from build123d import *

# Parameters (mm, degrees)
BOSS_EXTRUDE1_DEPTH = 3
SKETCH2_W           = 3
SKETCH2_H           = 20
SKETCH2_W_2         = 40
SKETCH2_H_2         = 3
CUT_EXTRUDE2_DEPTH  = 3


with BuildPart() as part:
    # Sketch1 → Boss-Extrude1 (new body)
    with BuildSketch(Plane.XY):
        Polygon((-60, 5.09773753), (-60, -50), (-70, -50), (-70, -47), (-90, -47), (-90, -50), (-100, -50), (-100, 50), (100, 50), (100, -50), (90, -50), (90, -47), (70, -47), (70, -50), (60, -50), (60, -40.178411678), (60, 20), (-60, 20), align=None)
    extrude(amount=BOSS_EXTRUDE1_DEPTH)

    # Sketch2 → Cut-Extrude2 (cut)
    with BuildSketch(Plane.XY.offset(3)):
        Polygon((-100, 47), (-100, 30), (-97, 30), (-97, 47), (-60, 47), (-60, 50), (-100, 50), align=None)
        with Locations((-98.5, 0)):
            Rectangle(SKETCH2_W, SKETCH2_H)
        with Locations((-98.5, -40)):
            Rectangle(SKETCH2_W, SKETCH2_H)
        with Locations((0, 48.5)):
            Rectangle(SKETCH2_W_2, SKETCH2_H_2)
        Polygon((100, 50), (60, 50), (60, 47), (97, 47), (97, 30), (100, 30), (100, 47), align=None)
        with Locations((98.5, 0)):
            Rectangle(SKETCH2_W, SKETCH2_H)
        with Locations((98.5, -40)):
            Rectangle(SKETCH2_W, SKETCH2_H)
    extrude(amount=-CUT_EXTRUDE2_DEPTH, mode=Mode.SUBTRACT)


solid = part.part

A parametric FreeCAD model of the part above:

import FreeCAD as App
import Part
import Sketcher


def add_polygon(sketch, points):
    """Adds a closed chain of lines whose ends are joined by coincident constraints."""
    first, n = sketch.GeometryCount, len(points)
    for a, b in zip(points, points[1:] + points[:1]):
        sketch.addGeometry(Part.LineSegment(App.Vector(*a, 0), App.Vector(*b, 0)), False)
    for i in range(n):
        sketch.addConstraint(Sketcher.Constraint("Coincident", first + i, 2, first + (i + 1) % n, 1))

doc = App.newDocument("Part")
body = doc.addObject("PartDesign::Body", "Body")

# Sketch on XY plane
sketch1 = body.newObject("Sketcher::SketchObject", "Sketch")
sketch1.AttachmentSupport = (doc.getObject("XY_Plane"), [""])
sketch1.MapMode = "FlatFace"
add_polygon(sketch1, [(-60, -50), (-60, 20), (60, 20), (60, -50), (70, -50), (70, -47), (90, -47), (90, -50), (100, -50), (100, 50), (-100, 50), (-100, -50), (-90, -50), (-90, -47), (-70, -47), (-70, -50)])  # lines 0-15
sketch1.addConstraint([
    Sketcher.Constraint("Vertical", 0),
    Sketcher.Constraint("Horizontal", 1),
    Sketcher.Constraint("Vertical", 2),
    Sketcher.Constraint("Horizontal", 3),
    Sketcher.Constraint("Vertical", 4),
    Sketcher.Constraint("Horizontal", 5),
    Sketcher.Constraint("Vertical", 6),
    Sketcher.Constraint("Horizontal", 7),
    Sketcher.Constraint("Vertical", 8),
    Sketcher.Constraint("Horizontal", 9),
    Sketcher.Constraint("Vertical", 10),
    Sketcher.Constraint("Horizontal", 11),
    Sketcher.Constraint("Vertical", 12),
    Sketcher.Constraint("Horizontal", 13),
    Sketcher.Constraint("Vertical", 14),
    Sketcher.Constraint("Horizontal", 15),
    Sketcher.Constraint("Symmetric", 7, 2, 9, 2, -1, 1),
    Sketcher.Constraint("Symmetric", 6, 2, 11, 2, -2),
    Sketcher.Constraint("Symmetric", 4, 2, 13, 2, -2),
    Sketcher.Constraint("Symmetric", 2, 2, 15, 2, -2),
    Sketcher.Constraint("Horizontal", 3, 2, 6, 2),
    Sketcher.Constraint("Equal", 3, 7),
    Sketcher.Constraint("DistanceX", 1, 1, 1, 2, 120.0),
    Sketcher.Constraint("DistanceX", 3, 1, 3, 2, 10.0),
    Sketcher.Constraint("DistanceX", 5, 1, 5, 2, 20.0),
    Sketcher.Constraint("DistanceY", 0, 1, 0, 2, 70.0),
    Sketcher.Constraint("DistanceY", 4, 1, 4, 2, 3.0),
    Sketcher.Constraint("DistanceY", 8, 1, 8, 2, 100.0),
])
pad1 = body.newObject("PartDesign::Pad", "Pad")
pad1.Profile = sketch1
pad1.Length = 3

# Sketch on XY plane
sketch2 = body.newObject("Sketcher::SketchObject", "Sketch001")
sketch2.AttachmentSupport = (doc.getObject("XY_Plane"), [""])
sketch2.MapMode = "FlatFace"
sketch2.AttachmentOffset = App.Placement(App.Vector(0, 0, 3), App.Rotation())
add_polygon(sketch2, [(-100, 30), (-97, 30), (-97, 47), (-60, 47), (-60, 50), (-100, 50)])  # lines 0-5
add_polygon(sketch2, [(-100, 10), (-100, -10), (-97, -10), (-97, 10)])  # lines 6-9
add_polygon(sketch2, [(-100, -30), (-100, -50), (-97, -50), (-97, -30)])  # lines 10-13
add_polygon(sketch2, [(-20, 50), (-20, 47), (20, 47), (20, 50)])  # lines 14-17
add_polygon(sketch2, [(100, 50), (60, 50), (60, 47), (97, 47), (97, 30), (100, 30)])  # lines 18-23
add_polygon(sketch2, [(97, 10), (97, -10), (100, -10), (100, 10)])  # lines 24-27
add_polygon(sketch2, [(97, -30), (97, -50), (100, -50), (100, -30)])  # lines 28-31
sketch2.addConstraint([
    Sketcher.Constraint("Horizontal", 0),
    Sketcher.Constraint("Vertical", 1),
    Sketcher.Constraint("Horizontal", 2),
    Sketcher.Constraint("Vertical", 3),
    Sketcher.Constraint("Horizontal", 4),
    Sketcher.Constraint("Vertical", 5),
    Sketcher.Constraint("Vertical", 6),
    Sketcher.Constraint("Horizontal", 7),
    Sketcher.Constraint("Vertical", 8),
    Sketcher.Constraint("Horizontal", 9),
    Sketcher.Constraint("Vertical", 10),
    Sketcher.Constraint("Horizontal", 11),
    Sketcher.Constraint("Vertical", 12),
    Sketcher.Constraint("Horizontal", 13),
    Sketcher.Constraint("Vertical", 14),
    Sketcher.Constraint("Horizontal", 15),
    Sketcher.Constraint("Vertical", 16),
    Sketcher.Constraint("Horizontal", 17),
    Sketcher.Constraint("Horizontal", 18),
    Sketcher.Constraint("Vertical", 19),
    Sketcher.Constraint("Horizontal", 20),
    Sketcher.Constraint("Vertical", 21),
    Sketcher.Constraint("Horizontal", 22),
    Sketcher.Constraint("Vertical", 23),
    Sketcher.Constraint("Vertical", 24),
    Sketcher.Constraint("Horizontal", 25),
    Sketcher.Constraint("Vertical", 26),
    Sketcher.Constraint("Horizontal", 27),
    Sketcher.Constraint("Vertical", 28),
    Sketcher.Constraint("Horizontal", 29),
    Sketcher.Constraint("Vertical", 30),
    Sketcher.Constraint("Horizontal", 31),
    Sketcher.Constraint("Symmetric", 12, 2, 21, 2, -1, 1),
    Sketcher.Constraint("Symmetric", 10, 2, 23, 2, -1, 1),
    Sketcher.Constraint("Symmetric", 8, 2, 24, 2, -1, 1),
    Sketcher.Constraint("Symmetric", 6, 2, 26, 2, -1, 1),
    Sketcher.Constraint("Symmetric", 4, 2, 29, 2, -1, 1),
    Sketcher.Constraint("Symmetric", 0, 2, 31, 2, -1, 1),
    Sketcher.Constraint("Symmetric", 3, 2, 18, 2, -2),
    Sketcher.Constraint("Symmetric", 1, 2, 20, 2, -2),
    Sketcher.Constraint("Symmetric", 5, 2, 22, 2, -2),
    Sketcher.Constraint("Horizontal", 2, 2, 14, 2),
    Sketcher.Constraint("Horizontal", 4, 2, 16, 2),
    Sketcher.Constraint("Horizontal", 7, 2, 24, 2),
    Sketcher.Constraint("Vertical", 5, 2, 6, 2),
    Sketcher.Constraint("Vertical", 1, 2, 7, 2),
    Sketcher.Constraint("Equal", 4, 15),
    Sketcher.Constraint("Equal", 31, 3),
    Sketcher.Constraint("Equal", 5, 6),
    Sketcher.Constraint("DistanceX", 0, 1, 0, 2, 3.0),
    Sketcher.Constraint("DistanceX", 2, 1, 2, 2, 37.0),
    Sketcher.Constraint("DistanceY", 1, 1, 1, 2, 17.0),
    Sketcher.Constraint("DistanceX", 0, 2, -1, 1, 97.0),
    Sketcher.Constraint("DistanceY", -1, 1, 0, 2, 30.0),
    Sketcher.Constraint("DistanceX", 14, 2, -1, 1, 20.0),
])
pocket1 = body.newObject("PartDesign::Pocket", "Pocket")
pocket1.Profile = sketch2
pocket1.Length = 3

doc.recompute()
